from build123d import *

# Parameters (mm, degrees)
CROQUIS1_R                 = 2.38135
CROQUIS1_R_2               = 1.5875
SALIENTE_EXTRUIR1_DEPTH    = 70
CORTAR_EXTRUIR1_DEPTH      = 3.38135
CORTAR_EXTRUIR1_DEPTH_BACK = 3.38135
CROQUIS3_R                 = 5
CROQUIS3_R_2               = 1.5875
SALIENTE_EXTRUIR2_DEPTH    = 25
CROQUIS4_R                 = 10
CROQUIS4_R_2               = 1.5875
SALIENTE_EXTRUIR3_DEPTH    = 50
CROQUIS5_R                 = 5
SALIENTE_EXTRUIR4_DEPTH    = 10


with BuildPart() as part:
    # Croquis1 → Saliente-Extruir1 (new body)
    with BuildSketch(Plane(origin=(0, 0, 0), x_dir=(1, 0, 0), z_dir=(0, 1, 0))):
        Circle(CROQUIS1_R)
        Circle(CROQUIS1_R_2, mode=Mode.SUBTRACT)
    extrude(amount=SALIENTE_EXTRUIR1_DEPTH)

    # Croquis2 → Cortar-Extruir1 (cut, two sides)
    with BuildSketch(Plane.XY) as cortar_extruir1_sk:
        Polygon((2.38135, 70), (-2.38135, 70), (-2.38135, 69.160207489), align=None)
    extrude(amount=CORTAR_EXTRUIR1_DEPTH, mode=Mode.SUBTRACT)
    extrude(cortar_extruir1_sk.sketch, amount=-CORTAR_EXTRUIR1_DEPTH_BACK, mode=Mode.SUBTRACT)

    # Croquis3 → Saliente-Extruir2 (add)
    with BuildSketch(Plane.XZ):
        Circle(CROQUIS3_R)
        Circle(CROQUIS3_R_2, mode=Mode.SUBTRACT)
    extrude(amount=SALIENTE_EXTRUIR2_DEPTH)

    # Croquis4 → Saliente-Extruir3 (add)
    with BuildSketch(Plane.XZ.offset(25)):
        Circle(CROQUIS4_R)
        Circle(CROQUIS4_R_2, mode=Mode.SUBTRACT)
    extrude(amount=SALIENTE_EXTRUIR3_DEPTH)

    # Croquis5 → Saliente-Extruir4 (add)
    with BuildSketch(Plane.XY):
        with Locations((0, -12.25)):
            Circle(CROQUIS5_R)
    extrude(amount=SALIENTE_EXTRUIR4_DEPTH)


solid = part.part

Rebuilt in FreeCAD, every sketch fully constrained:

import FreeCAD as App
import Part
import Sketcher

V = App.Vector
Q = App.Units.Quantity

doc = App.newDocument("Part")
params = doc.addObject("Spreadsheet::Sheet", "Params")
for row, (alias, value) in enumerate([
    ("pad1_length", "70 mm"),
    ("sketch3_diameter", "10 mm"),
    ("pad2_length", "25 mm"),
    ("sketch4_diameter", "20 mm"),
    ("pad3_length", "50 mm"),
    ("sketch5_diameter", "10 mm"),
    ("pad4_length", "10 mm"),
], start=1):
    params.set(f"A{row}", alias)
    params.set(f"B{row}", "=" + value)
    params.setAlias(f"B{row}", alias)

body = doc.addObject("PartDesign::Body", "Body")

# Sketch on XZ plane
sketch1 = body.newObject("Sketcher::SketchObject", "Sketch")
sketch1.AttachmentSupport = (doc.getObject("XZ_Plane"), [""])
sketch1.MapMode = "FlatFace"
sketch1.addGeometry([
    Part.Circle(V(0, 0, 0), V(0, 0, 1), 2.4),
    Part.Circle(V(0, 0, 0), V(0, 0, 1), 1.6),
], False)
sketch1.addConstraint([
    Sketcher.Constraint("Coincident", 0, 3, -1, 1),
    Sketcher.Constraint("Coincident", 1, 3, -1, 1),
    Sketcher.Constraint("Diameter", 1, Q("3.175 mm")),
    Sketcher.Constraint("Diameter", 0, Q("4.7627 mm")),
])
pad1 = body.newObject("PartDesign::Pad", "Pad")
pad1.Profile = sketch1
pad1.setExpression("Length", "Params.pad1_length")
pad1.Reversed = True

# Sketch on XY plane
sketch2 = body.newObject("Sketcher::SketchObject", "Sketch001")
sketch2.AttachmentSupport = (doc.getObject("XY_Plane"), [""])
sketch2.MapMode = "FlatFace"
sketch2.addGeometry([
    Part.LineSegment(V(2.4, 70, 0), V(-2.4, 70, 0)),
    Part.LineSegment(V(-2.4, 70, 0), V(-2.4, 69.2, 0)),
    Part.LineSegment(V(-2.4, 69.2, 0), V(2.4, 70, 0)),
], False)
sketch2.addConstraint([
    Sketcher.Constraint("Coincident", 0, 2, 1, 1),
    Sketcher.Constraint("Coincident", 1, 2, 2, 1),
    Sketcher.Constraint("Coincident", 2, 2, 0, 1),
    Sketcher.Constraint("Horizontal", 0),
    Sketcher.Constraint("Vertical", 1),
    Sketcher.Constraint("Angle", 2, Q("10 deg")),
    Sketcher.Constraint("DistanceY", -1, 1, 0, 2, Q("70 mm")),
    Sketcher.Constraint("DistanceX", 0, 2, 0, 1, Q("4.7627 mm")),
    Sketcher.Constraint("DistanceX", 0, 2, -1, 1, Q("2.38135 mm")),
])
pocket1 = body.newObject("PartDesign::Pocket", "Pocket")
pocket1.Profile = sketch2
pocket1.Type = "ThroughAll"
pocket1.Midplane = True

# Sketch on XZ plane
sketch3 = body.newObject("Sketcher::SketchObject", "Sketch002")
sketch3.AttachmentSupport = (doc.getObject("XZ_Plane"), [""])
sketch3.MapMode = "FlatFace"
sketch3.addGeometry([
    Part.Circle(V(0, 0, 0), V(0, 0, 1), 5),
    Part.Circle(V(0, 0, 0), V(0, 0, 1), 1.6),
], False)
sketch3.addConstraint([
    Sketcher.Constraint("Coincident", 0, 3, -1, 1),
    Sketcher.Constraint("Coincident", 1, 3, -1, 1),
    Sketcher.Constraint("Diameter", 0, Q("10 mm")),
    Sketcher.Constraint("Diameter", 1, Q("3.175 mm")),
])
sketch3.setExpression("Constraints[2]", "Params.sketch3_diameter")
pad2 = body.newObject("PartDesign::Pad", "Pad001")
pad2.Profile = sketch3
pad2.setExpression("Length", "Params.pad2_length")

# Sketch on XZ plane
sketch4 = body.newObject("Sketcher::SketchObject", "Sketch003")
sketch4.AttachmentSupport = (doc.getObject("XZ_Plane"), [""])
sketch4.MapMode = "FlatFace"
sketch4.AttachmentOffset = App.Placement(V(0, 0, 25), App.Rotation())
sketch4.addGeometry([
    Part.Circle(V(0, 0, 0), V(0, 0, 1), 10),
    Part.Circle(V(0, 0, 0), V(0, 0, 1), 1.6),
], False)
sketch4.addConstraint([
    Sketcher.Constraint("Coincident", 0, 3, -1, 1),
    Sketcher.Constraint("Coincident", 1, 3, -1, 1),
    Sketcher.Constraint("Diameter", 0, Q("20 mm")),
    Sketcher.Constraint("Diameter", 1, Q("3.175 mm")),
])
sketch4.setExpression("Constraints[2]", "Params.sketch4_diameter")
pad3 = body.newObject("PartDesign::Pad", "Pad002")
pad3.Profile = sketch4
pad3.setExpression("Length", "Params.pad3_length")

# Sketch on XY plane
sketch5 = body.newObject("Sketcher::SketchObject", "Sketch004")
sketch5.AttachmentSupport = (doc.getObject("XY_Plane"), [""])
sketch5.MapMode = "FlatFace"
sketch5.addGeometry(Part.Circle(V(0, -12, 0), V(0, 0, 1), 5), False)
sketch5.addConstraint([
    Sketcher.Constraint("PointOnObject", 0, 3, -2),
    Sketcher.Constraint("Diameter", 0, Q("10 mm")),
    Sketcher.Constraint("DistanceY", 0, 3, -1, 1, Q("12.25 mm")),
])
sketch5.setExpression("Constraints[1]", "Params.sketch5_diameter")
pad4 = body.newObject("PartDesign::Pad", "Pad003")
pad4.Profile = sketch5
pad4.setExpression("Length", "Params.pad4_length")

doc.recompute()
